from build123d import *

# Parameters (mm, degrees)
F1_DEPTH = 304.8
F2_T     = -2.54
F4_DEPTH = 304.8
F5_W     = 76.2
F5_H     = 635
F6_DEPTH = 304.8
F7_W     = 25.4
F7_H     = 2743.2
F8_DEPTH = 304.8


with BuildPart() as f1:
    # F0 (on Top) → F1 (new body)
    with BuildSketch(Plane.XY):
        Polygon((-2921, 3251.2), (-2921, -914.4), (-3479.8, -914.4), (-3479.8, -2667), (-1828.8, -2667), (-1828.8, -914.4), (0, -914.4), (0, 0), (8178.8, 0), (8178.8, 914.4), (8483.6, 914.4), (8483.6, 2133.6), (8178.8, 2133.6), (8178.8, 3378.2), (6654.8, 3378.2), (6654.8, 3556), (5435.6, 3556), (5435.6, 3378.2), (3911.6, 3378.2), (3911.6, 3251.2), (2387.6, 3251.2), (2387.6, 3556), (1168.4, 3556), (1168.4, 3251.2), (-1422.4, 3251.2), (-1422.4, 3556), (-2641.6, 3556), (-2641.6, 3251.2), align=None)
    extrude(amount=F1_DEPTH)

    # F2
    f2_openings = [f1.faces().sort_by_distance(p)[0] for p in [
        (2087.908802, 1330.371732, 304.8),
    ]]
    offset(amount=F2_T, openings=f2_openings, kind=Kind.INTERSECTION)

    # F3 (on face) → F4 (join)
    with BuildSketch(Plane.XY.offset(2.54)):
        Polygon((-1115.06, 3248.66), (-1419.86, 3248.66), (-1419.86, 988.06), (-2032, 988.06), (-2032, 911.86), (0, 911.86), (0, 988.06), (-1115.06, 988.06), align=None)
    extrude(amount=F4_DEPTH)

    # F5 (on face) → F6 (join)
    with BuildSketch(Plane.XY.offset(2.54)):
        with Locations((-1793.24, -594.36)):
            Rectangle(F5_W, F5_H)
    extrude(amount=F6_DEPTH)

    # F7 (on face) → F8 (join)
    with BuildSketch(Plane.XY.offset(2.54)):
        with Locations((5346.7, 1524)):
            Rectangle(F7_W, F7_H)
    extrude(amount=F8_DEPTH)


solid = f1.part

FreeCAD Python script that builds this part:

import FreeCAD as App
import Part
import Sketcher
from FreeCAD import Vector
Q = App.Units.Quantity


def faces_at(feature, points):
    """Names of the faces that lie closest to the given points."""
    faces = feature.Shape.Faces
    near = lambda p: min(range(len(faces)), key=lambda i: faces[i].distToShape(Part.Vertex(*p))[0])
    return sorted({f"Face{near(p) + 1}" for p in points})


def add_polygon(sketch, points):
    """Adds a closed chain of lines whose ends are joined by coincident constraints."""
    first, n = sketch.GeometryCount, len(points)
    for a, b in zip(points, points[1:] + points[:1]):
        sketch.addGeometry(Part.LineSegment(App.Vector(*a, 0), App.Vector(*b, 0)), False)
    for i in range(n):
        sketch.addConstraint(Sketcher.Constraint("Coincident", first + i, 2, first + (i + 1) % n, 1))

doc = App.newDocument("Part")
body = doc.addObject("PartDesign::Body", "Body")

sketch1 = doc.addObject("Sketcher::SketchObject", "Sketch")
body.addObject(sketch1)
sketch1.AttachmentSupport = (doc.XY_Plane, [""])
sketch1.MapMode = "FlatFace"
add_polygon(sketch1, [(-2921, 3251.2), (-2921, -914.4), (-3479.8, -914.4), (-3479.8, -2667), (-1828.8, -2667), (-1828.8, -914.4), (0, -914.4), (0, 0), (8178.8, 0), (8178.8, 914.4), (8483.6, 914.4), (8483.6, 2133.6), (8178.8, 2133.6), (8178.8, 3378.2), (6654.8, 3378.2), (6654.8, 3556), (5435.6, 3556), (5435.6, 3378.2), (3911.6, 3378.2), (3911.6, 3251.2), (2387.6, 3251.2), (2387.6, 3556), (1168.4, 3556), (1168.4, 3251.2), (-1422.4, 3251.2), (-1422.4, 3556), (-2641.6, 3556), (-2641.6, 3251.2)])
sketch1.addConstraint([
    Sketcher.Constraint("Vertical", 0),
    Sketcher.Constraint("Horizontal", 1),
    Sketcher.Constraint("Vertical", 2),
    Sketcher.Constraint("Horizontal", 3),
    Sketcher.Constraint("Vertical", 4),
    Sketcher.Constraint("Horizontal", 5),
    Sketcher.Constraint("Vertical", 6),
    Sketcher.Constraint("Horizontal", 7),
    Sketcher.Constraint("Vertical", 8),
    Sketcher.Constraint("Horizontal", 9),
    Sketcher.Constraint("Vertical", 10),
    Sketcher.Constraint("Horizontal", 11),
    Sketcher.Constraint("Vertical", 12),
    Sketcher.Constraint("Horizontal", 13),
    Sketcher.Constraint("Vertical", 14),
    Sketcher.Constraint("Horizontal", 15),
    Sketcher.Constraint("Vertical", 16),
    Sketcher.Constraint("Horizontal", 17),
    Sketcher.Constraint("Vertical", 18),
    Sketcher.Constraint("Horizontal", 19),
    Sketcher.Constraint("Vertical", 20),
    Sketcher.Constraint("Horizontal", 21),
    Sketcher.Constraint("Vertical", 22),
    Sketcher.Constraint("Horizontal", 23),
    Sketcher.Constraint("Vertical", 24),
    Sketcher.Constraint("Horizontal", 25),
    Sketcher.Constraint("Vertical", 26),
    Sketcher.Constraint("Horizontal", 27),
    Sketcher.Constraint("Coincident", 6, 2, -1, 1),
    Sketcher.Constraint("Horizontal", 1, 2, 4, 2),
    Sketcher.Constraint("Horizontal", 13, 2, 16, 2),
    Sketcher.Constraint("Horizontal", 15, 2, 20, 2),
    Sketcher.Constraint("Horizontal", 19, 2, 22, 2),
    Sketcher.Constraint("Horizontal", 21, 2, 24, 2),
    Sketcher.Constraint("Horizontal", 23, 2, 26, 2),
    Sketcher.Constraint("Vertical", 8, 2, 11, 2),
    Sketcher.Constraint("Equal", 13, 17),
    Sketcher.Constraint("Equal", 17, 19),
    Sketcher.Constraint("Equal", 15, 21),
    Sketcher.Constraint("Equal", 21, 25),
    Sketcher.Constraint("Equal", 6, 8),
    Sketcher.Constraint("Equal", 25, 10),
    Sketcher.Constraint("Equal", 11, 20),
    Sketcher.Constraint("DistanceX", 1, 2, 1, 1, Q("22 in")),
    Sketcher.Constraint("DistanceX", 3, 1, 3, 2, Q("65 in")),
    Sketcher.Constraint("DistanceX", 5, 1, 5, 2, Q("72 in")),
    Sketcher.Constraint("DistanceX", 7, 1, 7, 2, Q("322 in")),
    Sketcher.Constraint("DistanceX", 9, 1, 9, 2, Q("12 in")),
    Sketcher.Constraint("DistanceX", 13, 2, 13, 1, Q("60 in")),
    Sketcher.Constraint("DistanceX", 15, 2, 15, 1, Q("48 in")),
    Sketcher.Constraint("DistanceX", 23, 2, 23, 1, Q("102 in")),
    Sketcher.Constraint("DistanceY", 0, 2, 0, 1, Q("164 in")),
    Sketcher.Constraint("DistanceY", 2, 2, 2, 1, Q("69 in")),
    Sketcher.Constraint("DistanceY", 6, 1, 6, 2, Q("36 in")),
    Sketcher.Constraint("DistanceY", 12, 1, 12, 2, Q("49 in")),
])
pad1 = doc.addObject("PartDesign::Pad", "Pad")
body.addObject(pad1)
pad1.Profile = sketch1
pad1.Length = Q("12 in")
doc.recompute()

thickness = doc.addObject("PartDesign::Thickness", "Thickness")
body.addObject(thickness)
thickness.Base = (pad1, faces_at(pad1, [(2501.9, 444.5, 304.8)]))
thickness.Value = Q("0.1 in")
thickness.Reversed = True
thickness.Join = "Intersection"

sketch2 = doc.addObject("Sketcher::SketchObject", "Sketch001")
body.addObject(sketch2)
sketch2.AttachmentSupport = (doc.XY_Plane, [""])
sketch2.MapMode = "FlatFace"
sketch2.AttachmentOffset = App.Placement(Vector(0, 0, 0.1 * 25.4), App.Rotation())
add_polygon(sketch2, [(-1115.06, 3248.66), (-1419.86, 3248.66), (-1419.86, 988.06), (-2032, 988.06), (-2032, 911.86), (0, 911.86), (0, 988.06), (-1115.06, 988.06)])
sketch2.addConstraint([
    Sketcher.Constraint("Horizontal", 0),
    Sketcher.Constraint("Vertical", 1),
    Sketcher.Constraint("Horizontal", 2),
    Sketcher.Constraint("Vertical", 3),
    Sketcher.Constraint("Horizontal", 4),
    Sketcher.Constraint("Vertical", 5),
    Sketcher.Constraint("Horizontal", 6),
    Sketcher.Constraint("Vertical", 7),
    Sketcher.Constraint("PointOnObject", 4, 2, -2),
    Sketcher.Constraint("Horizontal", 2, 2, 5, 2),
    Sketcher.Constraint("DistanceX", 0, 2, 0, 1, Q("12 in")),
    Sketcher.Constraint("DistanceX", 4, 1, 4, 2, Q("80 in")),
    Sketcher.Constraint("DistanceY", 1, 2, 1, 1, Q("89 in")),
    Sketcher.Constraint("DistanceY", 3, 2, 3, 1, Q("3 in")),
    Sketcher.Constraint("DistanceX", 2, 2, 2, 1, Q("24.1 in")),
    Sketcher.Constraint("DistanceY", -1, 1, 0, 2, Q("127.9 in")),
])
pad2 = doc.addObject("PartDesign::Pad", "Pad001")
body.addObject(pad2)
pad2.Profile = sketch2
pad2.Length = Q("12 in")

sketch3 = doc.addObject("Sketcher::SketchObject", "Sketch002")
body.addObject(sketch3)
sketch3.AttachmentSupport = (doc.XY_Plane, [""])
sketch3.MapMode = "FlatFace"
sketch3.AttachmentOffset = App.Placement(Vector(0, 0, 0.1 * 25.4), App.Rotation())
add_polygon(sketch3, [(-1831.34, -276.86), (-1831.34, -911.86), (-1755.14, -911.86), (-1755.14, -276.86)])
sketch3.addConstraint([
    Sketcher.Constraint("Vertical", 0),
    Sketcher.Constraint("Horizontal", 1),
    Sketcher.Constraint("Vertical", 2),
    Sketcher.Constraint("Horizontal", 3),
    Sketcher.Constraint("DistanceX", 1, 1, 1, 2, Q("3 in")),
    Sketcher.Constraint("DistanceY", 0, 2, 0, 1, Q("25 in")),
    Sketcher.Constraint("DistanceX", 0, 2, -1, 1, Q("72.1 in")),
    Sketcher.Constraint("DistanceY", 0, 2, -1, 1, Q("35.9 in")),
])
pad3 = doc.addObject("PartDesign::Pad", "Pad002")
body.addObject(pad3)
pad3.Profile = sketch3
pad3.Length = Q("12 in")

sketch4 = doc.addObject("Sketcher::SketchObject", "Sketch003")
body.addObject(sketch4)
sketch4.AttachmentSupport = (doc.XY_Plane, [""])
sketch4.MapMode = "FlatFace"
sketch4.AttachmentOffset = App.Placement(Vector(0, 0, 0.1 * 25.4), App.Rotation())
add_polygon(sketch4, [(5334, 2895.6), (5334, 152.4), (5359.4, 152.4), (5359.4, 2895.6)])
sketch4.addConstraint([
    Sketcher.Constraint("Vertical", 0),
    Sketcher.Constraint("Horizontal", 1),
    Sketcher.Constraint("Vertical", 2),
    Sketcher.Constraint("Horizontal", 3),
    Sketcher.Constraint("DistanceX", 1, 1, 1, 2, Q("1 in")),
    Sketcher.Constraint("DistanceY", 0, 2, 0, 1, Q("108 in")),
    Sketcher.Constraint("DistanceX", -1, 1, 0, 2, Q("210 in")),
    Sketcher.Constraint("DistanceY", -1, 1, 0, 2, Q("6 in")),
])
pad4 = doc.addObject("PartDesign::Pad", "Pad003")
body.addObject(pad4)
pad4.Profile = sketch4
pad4.Length = Q("12 in")

doc.recompute()
